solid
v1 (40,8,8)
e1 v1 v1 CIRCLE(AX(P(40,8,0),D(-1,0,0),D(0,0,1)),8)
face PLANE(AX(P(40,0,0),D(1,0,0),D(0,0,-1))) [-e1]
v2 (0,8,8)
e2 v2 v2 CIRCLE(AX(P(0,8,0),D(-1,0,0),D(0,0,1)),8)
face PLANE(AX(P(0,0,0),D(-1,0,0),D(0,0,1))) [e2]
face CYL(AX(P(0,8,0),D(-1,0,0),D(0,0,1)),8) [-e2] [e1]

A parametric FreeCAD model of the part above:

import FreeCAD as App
import Part
import Sketcher
from FreeCAD import Vector

doc = App.newDocument("Part")
params = doc.addObject("Spreadsheet::Sheet", "Params")
for row, (alias, value) in enumerate([
    ("sketch1_width", "40 mm"),
    ("sketch1_height", "8 mm"),
    ("revolution_angle", "360 deg"),
], start=1):
    params.set(f"A{row}", alias)
    params.set(f"B{row}", "=" + value)
    params.setAlias(f"B{row}", alias)

body = doc.addObject("PartDesign::Body", "Body")

sketch1 = body.newObject("Sketcher::SketchObject", "Sketch")
sketch1.AttachmentSupport = (doc.getObject("XY_Plane"), [""])
sketch1.MapMode = "FlatFace"
sketch1.addGeometry(Part.LineSegment(Vector(0, 8, 0), Vector(0, 0, 0)), False)
sketch1.addGeometry(Part.LineSegment(Vector(0, 0, 0), Vector(40, 0, 0)), False)
sketch1.addGeometry(Part.LineSegment(Vector(40, 0, 0), Vector(40, 8, 0)), False)
sketch1.addGeometry(Part.LineSegment(Vector(40, 8, 0), Vector(0, 8, 0)), False)
sketch1.addGeometry(Part.LineSegment(Vector(0, 8, 0), Vector(40, 8, 0)), True)
sketch1.addConstraint(Sketcher.Constraint("Coincident", 0, 2, 1, 1))
sketch1.addConstraint(Sketcher.Constraint("Coincident", 1, 2, 2, 1))
sketch1.addConstraint(Sketcher.Constraint("Coincident", 2, 2, 3, 1))
sketch1.addConstraint(Sketcher.Constraint("Coincident", 3, 2, 0, 1))
sketch1.addConstraint(Sketcher.Constraint("Vertical", 0))
sketch1.addConstraint(Sketcher.Constraint("Horizontal", 1))
sketch1.addConstraint(Sketcher.Constraint("Vertical", 2))
sketch1.addConstraint(Sketcher.Constraint("Horizontal", 3))
sketch1.addConstraint(Sketcher.Constraint("Horizontal", 4))
sketch1.addConstraint(Sketcher.Constraint("Coincident", 0, 2, -1, 1))
sketch1.addConstraint(Sketcher.Constraint("Coincident", 4, 1, 3, 2))
sketch1.addConstraint(Sketcher.Constraint("Vertical", 1, 2, 4, 2))
sketch1.addConstraint(Sketcher.Constraint("DistanceX", 1, 1, 1, 2, 40.0))
sketch1.addConstraint(Sketcher.Constraint("DistanceY", 0, 2, 0, 1, 8.0))
sketch1.setExpression("Constraints[12]", "Params.sketch1_width")
sketch1.setExpression("Constraints[13]", "Params.sketch1_height")
revolution = body.newObject("PartDesign::Revolution", "Revolution")
revolution.Profile = sketch1
revolution.ReferenceAxis = (sketch1, ["Axis0"])
revolution.setExpression("Angle", "Params.revolution_angle")

doc.recompute()
